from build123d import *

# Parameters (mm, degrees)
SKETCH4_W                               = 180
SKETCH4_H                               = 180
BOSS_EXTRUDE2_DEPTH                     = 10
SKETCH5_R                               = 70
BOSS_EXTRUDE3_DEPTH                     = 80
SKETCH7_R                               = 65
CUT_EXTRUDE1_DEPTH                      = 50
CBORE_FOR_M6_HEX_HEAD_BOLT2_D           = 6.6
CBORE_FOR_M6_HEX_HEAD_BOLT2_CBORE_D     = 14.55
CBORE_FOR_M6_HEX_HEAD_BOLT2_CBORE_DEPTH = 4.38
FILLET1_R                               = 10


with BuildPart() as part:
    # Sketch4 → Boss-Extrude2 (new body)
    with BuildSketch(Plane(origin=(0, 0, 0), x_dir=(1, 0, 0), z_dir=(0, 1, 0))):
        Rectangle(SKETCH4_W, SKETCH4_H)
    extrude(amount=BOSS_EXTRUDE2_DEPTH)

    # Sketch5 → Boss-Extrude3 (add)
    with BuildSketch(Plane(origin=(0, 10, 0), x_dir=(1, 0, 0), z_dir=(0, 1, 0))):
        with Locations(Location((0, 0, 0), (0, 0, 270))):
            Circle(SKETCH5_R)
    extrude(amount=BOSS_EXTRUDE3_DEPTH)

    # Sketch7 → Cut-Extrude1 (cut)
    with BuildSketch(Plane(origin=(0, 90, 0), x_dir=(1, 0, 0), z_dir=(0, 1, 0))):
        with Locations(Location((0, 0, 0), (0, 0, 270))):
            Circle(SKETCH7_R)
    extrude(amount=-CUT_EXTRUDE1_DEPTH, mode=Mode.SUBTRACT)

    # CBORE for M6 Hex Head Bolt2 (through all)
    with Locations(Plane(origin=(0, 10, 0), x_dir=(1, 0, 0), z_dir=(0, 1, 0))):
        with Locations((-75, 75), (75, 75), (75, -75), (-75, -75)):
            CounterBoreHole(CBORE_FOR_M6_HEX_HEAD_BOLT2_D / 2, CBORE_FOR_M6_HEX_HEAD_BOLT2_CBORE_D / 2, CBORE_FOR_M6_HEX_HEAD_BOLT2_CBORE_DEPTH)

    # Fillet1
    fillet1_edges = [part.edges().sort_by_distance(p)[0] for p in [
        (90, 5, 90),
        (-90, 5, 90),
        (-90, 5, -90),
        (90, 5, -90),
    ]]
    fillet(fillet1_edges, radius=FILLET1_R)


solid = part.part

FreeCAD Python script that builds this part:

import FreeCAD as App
import Part
import Sketcher

V = App.Vector
Q = App.Units.Quantity


def edges_at(feature, points):
    """Names of the edges that pass closest to the given points."""
    edges = feature.Shape.Edges
    near = lambda p: min(range(len(edges)), key=lambda i: edges[i].distToShape(Part.Vertex(*p))[0])
    return sorted({f"Edge{near(p) + 1}" for p in points})


def add_polygon(sketch, points):
    """Adds a closed chain of lines whose ends are joined by coincident constraints."""
    first, n = sketch.GeometryCount, len(points)
    for a, b in zip(points, points[1:] + points[:1]):
        sketch.addGeometry(Part.LineSegment(App.Vector(*a, 0), App.Vector(*b, 0)), False)
    for i in range(n):
        sketch.addConstraint(Sketcher.Constraint("Coincident", first + i, 2, first + (i + 1) % n, 1))

doc = App.newDocument("Part")
body = doc.addObject("PartDesign::Body", "Body")

# Sketch on XZ plane
sketch1 = body.newObject("Sketcher::SketchObject", "Sketch")
sketch1.AttachmentSupport = (doc.getObject("XZ_Plane"), [""])
sketch1.MapMode = "FlatFace"
add_polygon(sketch1, [(-90, -90), (-90, 90), (90, 90), (90, -90)])  # lines 0-3
sketch1.addConstraint(Sketcher.Constraint("Vertical", 0))
sketch1.addConstraint(Sketcher.Constraint("Horizontal", 1))
sketch1.addConstraint(Sketcher.Constraint("Vertical", 2))
sketch1.addConstraint(Sketcher.Constraint("Horizontal", 3))
sketch1.addConstraint(Sketcher.Constraint("Symmetric", 0, 2, 2, 2, -1, 1))
sketch1.addConstraint(Sketcher.Constraint("Equal", 3, 0))
sketch1.addConstraint(Sketcher.Constraint("DistanceX", 1, 1, 1, 2, Q("180 mm")))
pad1 = body.newObject("PartDesign::Pad", "Pad")
pad1.Profile = sketch1
pad1.Length = 10
pad1.Reversed = True

# Sketch on XZ plane
sketch2 = body.newObject("Sketcher::SketchObject", "Sketch001")
sketch2.AttachmentSupport = (doc.getObject("XZ_Plane"), [""])
sketch2.MapMode = "FlatFace"
sketch2.AttachmentOffset = App.Placement(V(0, 0, -10), App.Rotation())
sketch2.addGeometry(Part.Circle(V(0, 0, 0), V(0, 0, 1), 70), False)
sketch2.addConstraint(Sketcher.Constraint("Coincident", 0, 3, -1, 1))
sketch2.addConstraint(Sketcher.Constraint("Diameter", 0, Q("140 mm")))
pad2 = body.newObject("PartDesign::Pad", "Pad001")
pad2.Profile = sketch2
pad2.Length = 80
pad2.Reversed = True

# Sketch on XZ plane
sketch3 = body.newObject("Sketcher::SketchObject", "Sketch002")
sketch3.AttachmentSupport = (doc.getObject("XZ_Plane"), [""])
sketch3.MapMode = "FlatFace"
sketch3.AttachmentOffset = App.Placement(V(0, 0, -90), App.Rotation())
sketch3.addGeometry(Part.Circle(V(0, 0, 0), V(0, 0, 1), 65), False)
sketch3.addConstraint(Sketcher.Constraint("Coincident", 0, 3, -1, 1))
sketch3.addConstraint(Sketcher.Constraint("Diameter", 0, Q("130 mm")))
pocket1 = body.newObject("PartDesign::Pocket", "Pocket")
pocket1.Profile = sketch3
pocket1.Length = 50
pocket1.Reversed = True

# Sketch on XZ plane
sketch4 = body.newObject("Sketcher::SketchObject", "Sketch003")
sketch4.AttachmentSupport = (doc.getObject("XZ_Plane"), [""])
sketch4.MapMode = "FlatFace"
sketch4.AttachmentOffset = App.Placement(V(0, 0, -10), App.Rotation())
sketch4.addGeometry(Part.Circle(V(-75, -75, 0), V(0, 0, 1), 3.3), False)
sketch4.addGeometry(Part.Circle(V(75, -75, 0), V(0, 0, 1), 3.3), False)
sketch4.addGeometry(Part.Circle(V(75, 75, 0), V(0, 0, 1), 3.3), False)
sketch4.addGeometry(Part.Circle(V(-75, 75, 0), V(0, 0, 1), 3.3), False)
sketch4.addConstraint(Sketcher.Constraint("Equal", 0, 1))
sketch4.addConstraint(Sketcher.Constraint("Equal", 1, 2))
sketch4.addConstraint(Sketcher.Constraint("Equal", 2, 3))
sketch4.addConstraint(Sketcher.Constraint("Symmetric", 0, 3, 2, 3, -1, 1))
sketch4.addConstraint(Sketcher.Constraint("Symmetric", 1, 3, 3, 3, -1, 1))
sketch4.addConstraint(Sketcher.Constraint("Symmetric", 0, 3, 1, 3, -2))
sketch4.addConstraint(Sketcher.Constraint("Diameter", 0, Q("6.6 mm")))
sketch4.addConstraint(Sketcher.Constraint("DistanceX", 0, 3, -1, 1, Q("75 mm")))
sketch4.addConstraint(Sketcher.Constraint("DistanceY", 0, 3, -1, 1, Q("75 mm")))
doc.recompute()
hole = body.newObject("PartDesign::Hole", "Hole")
hole.Profile = sketch4
hole.ThreadType = "None"
hole.Diameter = 6.6
hole.DepthType = "ThroughAll"
hole.HoleCutType = "Counterbore"
hole.HoleCutDiameter = 14.55
hole.HoleCutDepth = 4.38
hole.Reversed = True
doc.recompute()

fillet = body.newObject("PartDesign::Fillet", "Fillet")
fillet.Base = (hole, edges_at(hole, [
    (90, 5, 90),
    (-90, 5, 90),
    (-90, 5, -90),
    (90, 5, -90),
]))
fillet.Radius = 10

doc.recompute()
